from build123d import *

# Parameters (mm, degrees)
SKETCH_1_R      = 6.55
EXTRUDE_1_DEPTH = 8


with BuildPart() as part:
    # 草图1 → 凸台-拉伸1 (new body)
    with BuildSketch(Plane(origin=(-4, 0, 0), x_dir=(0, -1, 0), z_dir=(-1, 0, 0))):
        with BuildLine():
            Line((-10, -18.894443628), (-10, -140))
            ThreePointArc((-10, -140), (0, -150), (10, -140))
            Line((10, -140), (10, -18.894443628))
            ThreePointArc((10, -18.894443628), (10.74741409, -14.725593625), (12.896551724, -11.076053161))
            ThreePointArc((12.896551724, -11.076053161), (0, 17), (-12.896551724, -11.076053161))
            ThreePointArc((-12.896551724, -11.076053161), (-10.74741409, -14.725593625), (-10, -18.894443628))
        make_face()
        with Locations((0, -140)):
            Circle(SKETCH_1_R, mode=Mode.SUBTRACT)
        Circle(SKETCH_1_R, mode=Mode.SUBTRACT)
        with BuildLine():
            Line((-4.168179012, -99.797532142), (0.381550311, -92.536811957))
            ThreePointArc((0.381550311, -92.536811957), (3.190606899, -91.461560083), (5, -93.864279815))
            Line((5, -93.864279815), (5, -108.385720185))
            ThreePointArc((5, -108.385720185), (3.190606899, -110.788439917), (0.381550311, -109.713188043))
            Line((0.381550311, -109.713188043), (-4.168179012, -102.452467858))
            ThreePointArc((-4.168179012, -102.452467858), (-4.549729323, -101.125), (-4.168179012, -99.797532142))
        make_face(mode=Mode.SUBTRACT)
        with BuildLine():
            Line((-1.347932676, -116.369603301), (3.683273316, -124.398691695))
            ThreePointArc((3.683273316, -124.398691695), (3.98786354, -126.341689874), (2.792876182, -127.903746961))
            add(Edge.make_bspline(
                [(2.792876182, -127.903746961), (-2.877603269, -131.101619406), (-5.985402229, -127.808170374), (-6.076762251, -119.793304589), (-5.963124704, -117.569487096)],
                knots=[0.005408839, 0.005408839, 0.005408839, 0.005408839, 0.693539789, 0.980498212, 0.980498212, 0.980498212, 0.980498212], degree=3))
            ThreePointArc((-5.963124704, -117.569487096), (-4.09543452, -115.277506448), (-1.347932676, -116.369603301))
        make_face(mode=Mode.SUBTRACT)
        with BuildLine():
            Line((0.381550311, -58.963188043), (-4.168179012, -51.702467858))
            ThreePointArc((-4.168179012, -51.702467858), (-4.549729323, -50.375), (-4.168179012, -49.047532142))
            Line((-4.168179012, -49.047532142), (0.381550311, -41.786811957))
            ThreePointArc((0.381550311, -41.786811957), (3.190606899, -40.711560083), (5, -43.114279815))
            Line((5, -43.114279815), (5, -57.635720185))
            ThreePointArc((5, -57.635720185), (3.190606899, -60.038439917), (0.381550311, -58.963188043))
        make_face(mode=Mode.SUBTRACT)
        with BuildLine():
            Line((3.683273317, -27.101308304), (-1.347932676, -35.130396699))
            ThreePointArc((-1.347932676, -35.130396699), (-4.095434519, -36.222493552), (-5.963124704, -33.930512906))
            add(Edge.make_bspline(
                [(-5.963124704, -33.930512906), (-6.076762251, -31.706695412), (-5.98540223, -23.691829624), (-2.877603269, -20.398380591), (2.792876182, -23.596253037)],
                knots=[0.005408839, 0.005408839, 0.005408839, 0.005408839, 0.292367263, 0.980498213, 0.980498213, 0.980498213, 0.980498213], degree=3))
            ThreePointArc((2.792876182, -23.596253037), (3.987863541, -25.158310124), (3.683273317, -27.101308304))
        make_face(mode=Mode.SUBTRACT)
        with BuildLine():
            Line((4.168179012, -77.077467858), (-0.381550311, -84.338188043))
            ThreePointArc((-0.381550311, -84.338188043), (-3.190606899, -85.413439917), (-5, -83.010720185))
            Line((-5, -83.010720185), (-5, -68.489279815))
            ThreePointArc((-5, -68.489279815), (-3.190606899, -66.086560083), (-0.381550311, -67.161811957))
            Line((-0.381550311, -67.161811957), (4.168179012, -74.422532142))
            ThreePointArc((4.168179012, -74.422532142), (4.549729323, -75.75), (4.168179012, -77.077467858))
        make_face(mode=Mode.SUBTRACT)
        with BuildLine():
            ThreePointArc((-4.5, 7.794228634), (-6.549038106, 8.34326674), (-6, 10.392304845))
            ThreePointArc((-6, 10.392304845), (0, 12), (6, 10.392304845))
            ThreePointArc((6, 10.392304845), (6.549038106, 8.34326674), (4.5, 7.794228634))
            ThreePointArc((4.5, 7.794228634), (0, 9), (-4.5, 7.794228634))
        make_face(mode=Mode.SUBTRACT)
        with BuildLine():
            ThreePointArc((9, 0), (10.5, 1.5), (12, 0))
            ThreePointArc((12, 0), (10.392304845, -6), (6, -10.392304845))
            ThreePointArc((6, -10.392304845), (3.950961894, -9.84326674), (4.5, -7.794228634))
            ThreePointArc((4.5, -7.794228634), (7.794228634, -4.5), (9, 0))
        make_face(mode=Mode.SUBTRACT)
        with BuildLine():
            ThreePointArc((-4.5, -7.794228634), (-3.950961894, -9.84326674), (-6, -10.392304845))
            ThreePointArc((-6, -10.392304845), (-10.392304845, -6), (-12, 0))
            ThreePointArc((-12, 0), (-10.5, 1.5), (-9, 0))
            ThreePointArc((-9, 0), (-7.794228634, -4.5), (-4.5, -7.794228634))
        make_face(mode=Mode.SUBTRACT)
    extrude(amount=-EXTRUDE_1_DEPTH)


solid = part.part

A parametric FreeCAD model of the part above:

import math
import FreeCAD as App
import Part
import Sketcher
Q = App.Units.Quantity

doc = App.newDocument("Part")
body = doc.addObject("PartDesign::Body", "Body")

sketch1 = doc.addObject("Sketcher::SketchObject", "Sketch")
body.addObject(sketch1)
sketch1.AttachmentSupport = (doc.YZ_Plane, [""])
sketch1.MapMode = "FlatFace"
sketch1.AttachmentOffset = App.Placement(App.Vector(0, 0, -4), App.Rotation())
sketch1.addGeometry([
    Part.LineSegment(App.Vector(10, -18.894444, 0), App.Vector(10, -140, 0)),
    Part.ArcOfCircle(Part.Circle(App.Vector(0, -140, 0), App.Vector(0, 0, 1), 10), math.radians(180), math.radians(360)),
    Part.LineSegment(App.Vector(-10, -140, 0), App.Vector(-10, -18.894444, 0)),
    Part.ArcOfCircle(Part.Circle(App.Vector(-22, -18.894444, 0), App.Vector(0, 0, 1), 12), math.radians(0), math.radians(40.657249)),
    Part.ArcOfCircle(Part.Circle(App.Vector(0, 0, 0), App.Vector(0, 0, 1), 17), math.radians(-40.657249), math.radians(220.657249)),
    Part.ArcOfCircle(Part.Circle(App.Vector(22, -18.894444, 0), App.Vector(0, 0, 1), 12), math.radians(139.342751), math.radians(180)),
    Part.ArcOfCircle(Part.Circle(App.Vector(3.466382, -117.697071, 0), App.Vector(0, 0, 1), 2.5), math.radians(2.925282), math.radians(147.927824)),
    Part.LineSegment(App.Vector(1.347933, -116.369603, 0), App.Vector(-3.683273, -124.398692, 0)),
    Part.ArcOfCircle(Part.Circle(App.Vector(-1.564824, -125.72616, 0), App.Vector(0, 0, 1), 2.5), math.radians(147.927824), math.radians(240.579133)),
    Part.BSplineCurve([App.Vector(-2.792876, -127.903747, 0), App.Vector(2.877603, -131.101619, 0), App.Vector(5.985402, -127.80817, 0), App.Vector(6.076762, -119.793305, 0), App.Vector(5.963125, -117.569487, 0)], [4, 1, 4], [0.005408839, 0.693539789, 0.980498212], False, 3, [1, 1, 1, 1, 1], False),
    Part.ArcOfCircle(Part.Circle(App.Vector(-2.049729, -75.75, 0), App.Vector(0, 0, 1), 2.5), math.radians(147.927824), math.radians(212.072176)),
    Part.LineSegment(App.Vector(-4.168179, -77.077468, 0), App.Vector(0.38155, -84.338188, 0)),
    Part.ArcOfCircle(Part.Circle(App.Vector(2.5, -83.01072, 0), App.Vector(0, 0, 1), 2.5), math.radians(-147.927824), math.radians(0)),
    Part.LineSegment(App.Vector(5, -83.01072, 0), App.Vector(5, -68.48928, 0)),
    Part.ArcOfCircle(Part.Circle(App.Vector(2.5, -68.48928, 0), App.Vector(0, 0, 1), 2.5), math.radians(0), math.radians(147.927824)),
    Part.LineSegment(App.Vector(0.38155, -67.161812, 0), App.Vector(-4.168179, -74.422532, 0)),
    Part.Circle(App.Vector(0, -140, 0), App.Vector(0, 0, 1), 6.55),
    Part.ArcOfCircle(Part.Circle(App.Vector(2.049729, -101.125, 0), App.Vector(0, 0, 1), 2.5), math.radians(-32.072176), math.radians(32.072176)),
    Part.LineSegment(App.Vector(4.168179, -99.797532, 0), App.Vector(-0.38155, -92.536812, 0)),
    Part.ArcOfCircle(Part.Circle(App.Vector(-2.5, -93.86428, 0), App.Vector(0, 0, 1), 2.5), math.radians(32.072176), math.radians(180)),
    Part.LineSegment(App.Vector(-5, -93.86428, 0), App.Vector(-5, -108.38572, 0)),
    Part.ArcOfCircle(Part.Circle(App.Vector(-2.5, -108.38572, 0), App.Vector(0, 0, 1), 2.5), math.radians(180), math.radians(327.927824)),
    Part.LineSegment(App.Vector(-0.38155, -109.713188, 0), App.Vector(4.168179, -102.452468, 0)),
    Part.ArcOfCircle(Part.Circle(App.Vector(-1.564824, -25.77384, 0), App.Vector(0, 0, 1), 2.5), math.radians(119.420867), math.radians(212.072176)),
    Part.LineSegment(App.Vector(-3.683273, -27.101308, 0), App.Vector(1.347933, -35.130397, 0)),
    Part.ArcOfCircle(Part.Circle(App.Vector(3.466382, -33.802929, 0), App.Vector(0, 0, 1), 2.5), math.radians(-147.927824), math.radians(-2.925282)),
    Part.BSplineCurve([App.Vector(5.963125, -33.930513, 0), App.Vector(6.076762, -31.706695, 0), App.Vector(5.985402, -23.69183, 0), App.Vector(2.877603, -20.398381, 0), App.Vector(-2.792876, -23.596253, 0)], [4, 1, 4], [0.005408839, 0.292367263, 0.980498213], False, 3, [1, 1, 1, 1, 1], False),
    Part.ArcOfCircle(Part.Circle(App.Vector(0, 0, 0), App.Vector(0, 0, 1), 9), math.radians(-60), math.radians(0)),
    Part.ArcOfCircle(Part.Circle(App.Vector(5.25, -9.093267, 0), App.Vector(0, 0, 1), 1.5), math.radians(120), math.radians(300)),
    Part.ArcOfCircle(Part.Circle(App.Vector(0, 0, 0), App.Vector(0, 0, 1), 12), math.radians(-60), math.radians(0)),
    Part.ArcOfCircle(Part.Circle(App.Vector(10.5, 0, 0), App.Vector(0, 0, 1), 1.5), math.radians(0), math.radians(180)),
    Part.ArcOfCircle(Part.Circle(App.Vector(-2.5, -57.63572, 0), App.Vector(0, 0, 1), 2.5), math.radians(180), math.radians(327.927824)),
    Part.LineSegment(App.Vector(-0.38155, -58.963188, 0), App.Vector(4.168179, -51.702468, 0)),
    Part.ArcOfCircle(Part.Circle(App.Vector(2.049729, -50.375, 0), App.Vector(0, 0, 1), 2.5), math.radians(-32.072176), math.radians(32.072176)),
    Part.LineSegment(App.Vector(4.168179, -49.047532, 0), App.Vector(-0.38155, -41.786812, 0)),
    Part.ArcOfCircle(Part.Circle(App.Vector(-2.5, -43.11428, 0), App.Vector(0, 0, 1), 2.5), math.radians(32.072176), math.radians(180)),
    Part.LineSegment(App.Vector(-5, -43.11428, 0), App.Vector(-5, -57.63572, 0)),
    Part.Circle(App.Vector(0, 0, 0), App.Vector(0, 0, 1), 6.55),
    Part.ArcOfCircle(Part.Circle(App.Vector(0, 0, 0), App.Vector(0, 0, 1), 9), math.radians(60), math.radians(120)),
    Part.ArcOfCircle(Part.Circle(App.Vector(5.25, 9.093267, 0), App.Vector(0, 0, 1), 1.5), math.radians(-120), math.radians(60)),
    Part.ArcOfCircle(Part.Circle(App.Vector(0, 0, 0), App.Vector(0, 0, 1), 12), math.radians(60), math.radians(120)),
    Part.ArcOfCircle(Part.Circle(App.Vector(-5.25, 9.093267, 0), App.Vector(0, 0, 1), 1.5), math.radians(120), math.radians(300)),
    Part.ArcOfCircle(Part.Circle(App.Vector(0, 0, 0), App.Vector(0, 0, 1), 9), math.radians(180), math.radians(240)),
    Part.ArcOfCircle(Part.Circle(App.Vector(-10.5, 0, 0), App.Vector(0, 0, 1), 1.5), math.radians(0), math.radians(180)),
    Part.ArcOfCircle(Part.Circle(App.Vector(0, 0, 0), App.Vector(0, 0, 1), 12), math.radians(-180), math.radians(-120)),
    Part.ArcOfCircle(Part.Circle(App.Vector(-5.25, -9.093267, 0), App.Vector(0, 0, 1), 1.5), math.radians(-120), math.radians(60)),
], False)
sketch1.addConstraint([
    Sketcher.Constraint("Block", 9),
    Sketcher.Constraint("Block", 26),
    Sketcher.Constraint("Coincident", 0, 2, 1, 2),
    Sketcher.Constraint("Coincident", 1, 1, 2, 1),
    Sketcher.Constraint("Coincident", 2, 2, 3, 1),
    Sketcher.Constraint("Coincident", 3, 2, 4, 2),
    Sketcher.Constraint("Coincident", 4, 1, 5, 1),
    Sketcher.Constraint("Coincident", 5, 2, 0, 1),
    Sketcher.Constraint("Coincident", 6, 2, 7, 1),
    Sketcher.Constraint("Coincident", 7, 2, 8, 1),
    Sketcher.Constraint("Coincident", 8, 2, 9, 1),
    Sketcher.Constraint("Coincident", 9, 2, 6, 1),
    Sketcher.Constraint("Coincident", 10, 2, 11, 1),
    Sketcher.Constraint("Coincident", 11, 2, 12, 1),
    Sketcher.Constraint("Coincident", 12, 2, 13, 1),
    Sketcher.Constraint("Coincident", 13, 2, 14, 1),
    Sketcher.Constraint("Coincident", 14, 2, 15, 1),
    Sketcher.Constraint("Coincident", 15, 2, 10, 1),
    Sketcher.Constraint("Coincident", 17, 2, 18, 1),
    Sketcher.Constraint("Coincident", 18, 2, 19, 1),
    Sketcher.Constraint("Coincident", 19, 2, 20, 1),
    Sketcher.Constraint("Coincident", 20, 2, 21, 1),
    Sketcher.Constraint("Coincident", 21, 2, 22, 1),
    Sketcher.Constraint("Coincident", 22, 2, 17, 1),
    Sketcher.Constraint("Coincident", 23, 2, 24, 1),
    Sketcher.Constraint("Coincident", 24, 2, 25, 1),
    Sketcher.Constraint("Coincident", 25, 2, 26, 1),
    Sketcher.Constraint("Coincident", 26, 2, 23, 1),
    Sketcher.Constraint("Coincident", 27, 1, 28, 1),
    Sketcher.Constraint("Coincident", 28, 2, 29, 1),
    Sketcher.Constraint("Coincident", 29, 2, 30, 1),
    Sketcher.Constraint("Coincident", 30, 2, 27, 2),
    Sketcher.Constraint("Coincident", 31, 2, 32, 1),
    Sketcher.Constraint("Coincident", 32, 2, 33, 1),
    Sketcher.Constraint("Coincident", 33, 2, 34, 1),
    Sketcher.Constraint("Coincident", 34, 2, 35, 1),
    Sketcher.Constraint("Coincident", 35, 2, 36, 1),
    Sketcher.Constraint("Coincident", 36, 2, 31, 1),
    Sketcher.Constraint("Coincident", 38, 1, 39, 1),
    Sketcher.Constraint("Coincident", 39, 2, 40, 1),
    Sketcher.Constraint("Coincident", 40, 2, 41, 1),
    Sketcher.Constraint("Coincident", 41, 2, 38, 2),
    Sketcher.Constraint("Coincident", 42, 1, 43, 1),
    Sketcher.Constraint("Coincident", 43, 2, 44, 1),
    Sketcher.Constraint("Coincident", 44, 2, 45, 1),
    Sketcher.Constraint("Coincident", 45, 2, 42, 2),
    Sketcher.Constraint("Vertical", 0),
    Sketcher.Constraint("Vertical", 2),
    Sketcher.Constraint("Vertical", 13),
    Sketcher.Constraint("Vertical", 20),
    Sketcher.Constraint("Vertical", 36),
    Sketcher.Constraint("Coincident", 4, 3, -1, 1),
    Sketcher.Constraint("Coincident", 27, 3, -1, 1),
    Sketcher.Constraint("Coincident", 29, 3, -1, 1),
    Sketcher.Constraint("Coincident", 37, 3, -1, 1),
    Sketcher.Constraint("Coincident", 38, 3, -1, 1),
    Sketcher.Constraint("Coincident", 40, 3, -1, 1),
    Sketcher.Constraint("Coincident", 42, 3, -1, 1),
    Sketcher.Constraint("Coincident", 44, 3, -1, 1),
    Sketcher.Constraint("Coincident", 16, 3, 1, 3),
    Sketcher.Constraint("PointOnObject", 1, 3, -2),
    Sketcher.Constraint("PointOnObject", 30, 3, -1),
    Sketcher.Constraint("PointOnObject", 43, 3, -1),
    Sketcher.Constraint("PointOnObject", 29, 2, -1),
    Sketcher.Constraint("PointOnObject", 30, 2, -1),
    Sketcher.Constraint("PointOnObject", 42, 1, -1),
    Sketcher.Constraint("PointOnObject", 43, 2, -1),
    Sketcher.Constraint("Radius", 1, Q("10 mm")),
    Sketcher.Constraint("Radius", 3, Q("12 mm")),
    Sketcher.Constraint("Radius", 4, Q("17 mm")),
    Sketcher.Constraint("Radius", 5, Q("12 mm")),
    Sketcher.Constraint("Radius", 27, Q("9 mm")),
    Sketcher.Constraint("Radius", 29, Q("12 mm")),
    Sketcher.Constraint("Radius", 38, Q("9 mm")),
    Sketcher.Constraint("Radius", 40, Q("12 mm")),
    Sketcher.Constraint("Radius", 42, Q("9 mm")),
    Sketcher.Constraint("Radius", 44, Q("12 mm")),
    Sketcher.Constraint("Diameter", 16, Q("13.1 mm")),
    Sketcher.Constraint("Diameter", 37, Q("13.1 mm")),
    Sketcher.Constraint("Radius", 6, Q("2.5 mm")),
    Sketcher.Constraint("Radius", 8, Q("2.5 mm")),
    Sketcher.Constraint("Radius", 10, Q("2.5 mm")),
    Sketcher.Constraint("Radius", 12, Q("2.5 mm")),
    Sketcher.Constraint("Radius", 14, Q("2.5 mm")),
    Sketcher.Constraint("Radius", 17, Q("2.5 mm")),
    Sketcher.Constraint("Radius", 19, Q("2.5 mm")),
    Sketcher.Constraint("Radius", 21, Q("2.5 mm")),
    Sketcher.Constraint("Radius", 23, Q("2.5 mm")),
    Sketcher.Constraint("Radius", 25, Q("2.5 mm")),
    Sketcher.Constraint("Radius", 31, Q("2.5 mm")),
    Sketcher.Constraint("Radius", 33, Q("2.5 mm")),
    Sketcher.Constraint("Radius", 35, Q("2.5 mm")),
    Sketcher.Constraint("DistanceY", 1, 3, -1, 1, Q("140 mm")),
    Sketcher.Constraint("DistanceY", 0, 2, -1, 1, Q("140 mm")),
    Sketcher.Constraint("DistanceY", 1, 1, -1, 1, Q("140 mm")),
    Sketcher.Constraint("DistanceX", -1, 1, 12, 2, Q("5 mm")),
    Sketcher.Constraint("DistanceX", 19, 2, -1, 1, Q("5 mm")),
    Sketcher.Constraint("DistanceX", -1, 1, 28, 2, Q("6 mm")),
    Sketcher.Constraint("DistanceX", 35, 2, -1, 1, Q("5 mm")),
    Sketcher.Constraint("DistanceX", -1, 1, 39, 2, Q("6 mm")),
    Sketcher.Constraint("DistanceX", 40, 2, -1, 1, Q("6 mm")),
    Sketcher.Constraint("DistanceX", 44, 2, -1, 1, Q("6 mm")),
    Sketcher.Constraint("DistanceX", -1, 1, 27, 1, Q("4.5 mm")),
    Sketcher.Constraint("DistanceX", -1, 1, 38, 1, Q("4.5 mm")),
    Sketcher.Constraint("DistanceX", 41, 2, -1, 1, Q("4.5 mm")),
    Sketcher.Constraint("DistanceX", 45, 2, -1, 1, Q("4.5 mm")),
    Sketcher.Constraint("DistanceY", 10, 3, -1, 1, Q("75.75 mm")),
    Sketcher.Constraint("DistanceX", -1, 1, 28, 3, Q("5.25 mm")),
    Sketcher.Constraint("DistanceX", -1, 1, 39, 3, Q("5.25 mm")),
    Sketcher.Constraint("DistanceX", 41, 3, -1, 1, Q("5.25 mm")),
    Sketcher.Constraint("DistanceX", 45, 3, -1, 1, Q("5.25 mm")),
    Sketcher.Constraint("DistanceY", 17, 3, -1, 1, Q("101.125 mm")),
    Sketcher.Constraint("DistanceY", 33, 3, -1, 1, Q("50.375 mm")),
    Sketcher.Constraint("DistanceY", 13, 1, 13, 2, Q("14.52144 mm")),
    Sketcher.Constraint("DistanceY", 20, 2, 20, 1, Q("14.52144 mm")),
    Sketcher.Constraint("DistanceY", 36, 2, 36, 1, Q("14.52144 mm")),
    Sketcher.Constraint("DistanceY", 0, 2, 0, 1, Q("121.105556 mm")),
    Sketcher.Constraint("DistanceY", 2, 1, 2, 2, Q("121.105556 mm")),
    Sketcher.Constraint("DistanceY", 6, 3, -1, 1, Q("117.697071 mm")),
    Sketcher.Constraint("DistanceY", 8, 3, -1, 1, Q("125.72616 mm")),
    Sketcher.Constraint("DistanceX", 10, 3, -1, 1, Q("2.049729 mm")),
    Sketcher.Constraint("DistanceY", 12, 3, -1, 1, Q("83.01072 mm")),
    Sketcher.Constraint("DistanceY", 14, 3, -1, 1, Q("68.48928 mm")),
    Sketcher.Constraint("DistanceX", -1, 1, 17, 3, Q("2.049729 mm")),
    Sketcher.Constraint("DistanceY", 19, 3, -1, 1, Q("93.86428 mm")),
    Sketcher.Constraint("DistanceY", 21, 3, -1, 1, Q("108.38572 mm")),
    Sketcher.Constraint("DistanceY", 23, 3, -1, 1, Q("25.77384 mm")),
    Sketcher.Constraint("DistanceY", 25, 3, -1, 1, Q("33.802929 mm")),
    Sketcher.Constraint("DistanceY", 31, 3, -1, 1, Q("57.63572 mm")),
    Sketcher.Constraint("DistanceX", -1, 1, 33, 3, Q("2.049729 mm")),
    Sketcher.Constraint("DistanceY", 35, 3, -1, 1, Q("43.11428 mm")),
    Sketcher.Constraint("DistanceX", 3, 2, -1, 1, Q("12.896552 mm")),
    Sketcher.Constraint("DistanceX", -1, 1, 4, 1, Q("12.896552 mm")),
    Sketcher.Constraint("DistanceY", 7, 2, -1, 1, Q("124.398692 mm")),
    Sketcher.Constraint("DistanceX", 10, 2, -1, 1, Q("4.168179 mm")),
    Sketcher.Constraint("DistanceX", -1, 1, 11, 2, Q("0.38155 mm")),
    Sketcher.Constraint("DistanceY", 12, 2, -1, 1, Q("83.01072 mm")),
    Sketcher.Constraint("DistanceX", -1, 1, 14, 2, Q("0.38155 mm")),
    Sketcher.Constraint("DistanceX", 15, 2, -1, 1, Q("4.168179 mm")),
    Sketcher.Constraint("DistanceX", -1, 1, 17, 2, Q("4.168179 mm")),
    Sketcher.Constraint("DistanceX", 18, 2, -1, 1, Q("0.38155 mm")),
    Sketcher.Constraint("DistanceY", 19, 2, -1, 1, Q("93.86428 mm")),
    Sketcher.Constraint("DistanceX", 21, 2, -1, 1, Q("0.38155 mm")),
    Sketcher.Constraint("DistanceX", -1, 1, 22, 2, Q("4.168179 mm")),
    Sketcher.Constraint("DistanceY", 23, 2, -1, 1, Q("27.101308 mm")),
    Sketcher.Constraint("DistanceX", 31, 2, -1, 1, Q("0.38155 mm")),
    Sketcher.Constraint("DistanceX", -1, 1, 32, 2, Q("4.168179 mm")),
    Sketcher.Constraint("DistanceX", -1, 1, 33, 2, Q("4.168179 mm")),
    Sketcher.Constraint("DistanceX", 34, 2, -1, 1, Q("0.38155 mm")),
    Sketcher.Constraint("DistanceY", 35, 2, -1, 1, Q("43.11428 mm")),
    Sketcher.Constraint("Distance", 7, Q("9.475194 mm")),
    Sketcher.Constraint("Distance", 24, Q("9.475194 mm")),
])
pad1 = doc.addObject("PartDesign::Pad", "Pad")
body.addObject(pad1)
pad1.Profile = sketch1
pad1.Length = 8

doc.recompute()
